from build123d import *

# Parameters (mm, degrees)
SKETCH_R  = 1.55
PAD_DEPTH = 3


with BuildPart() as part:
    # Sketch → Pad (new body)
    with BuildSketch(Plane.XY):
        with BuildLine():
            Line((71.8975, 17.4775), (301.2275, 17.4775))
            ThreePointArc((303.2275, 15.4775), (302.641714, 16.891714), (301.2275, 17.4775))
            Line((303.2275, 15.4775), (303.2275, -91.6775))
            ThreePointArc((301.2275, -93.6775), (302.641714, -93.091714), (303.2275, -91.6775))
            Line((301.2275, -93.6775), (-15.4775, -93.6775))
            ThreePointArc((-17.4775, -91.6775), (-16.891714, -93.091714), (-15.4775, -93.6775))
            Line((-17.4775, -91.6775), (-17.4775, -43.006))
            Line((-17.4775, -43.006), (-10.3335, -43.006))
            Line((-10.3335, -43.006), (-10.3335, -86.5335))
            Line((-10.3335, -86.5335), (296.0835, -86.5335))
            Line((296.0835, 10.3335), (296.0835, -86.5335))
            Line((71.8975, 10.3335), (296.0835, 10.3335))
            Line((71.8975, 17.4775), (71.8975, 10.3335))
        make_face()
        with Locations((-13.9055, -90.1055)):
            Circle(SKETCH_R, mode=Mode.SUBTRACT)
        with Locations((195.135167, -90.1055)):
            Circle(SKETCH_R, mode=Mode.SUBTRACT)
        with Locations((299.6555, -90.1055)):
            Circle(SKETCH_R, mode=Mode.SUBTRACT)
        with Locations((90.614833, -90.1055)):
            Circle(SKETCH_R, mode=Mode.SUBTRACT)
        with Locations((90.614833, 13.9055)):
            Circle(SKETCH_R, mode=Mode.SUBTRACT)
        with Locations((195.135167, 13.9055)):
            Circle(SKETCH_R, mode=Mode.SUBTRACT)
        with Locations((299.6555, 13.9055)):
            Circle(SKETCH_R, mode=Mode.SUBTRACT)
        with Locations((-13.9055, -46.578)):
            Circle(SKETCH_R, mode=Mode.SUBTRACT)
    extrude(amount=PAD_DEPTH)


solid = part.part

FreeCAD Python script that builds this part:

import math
import FreeCAD as App
import Part
import Sketcher
Q = App.Units.Quantity

doc = App.newDocument("Part")
body = doc.addObject("PartDesign::Body", "Body")

sketch1 = body.newObject("Sketcher::SketchObject", "Sketch")
sketch1.AttachmentSupport = (doc.getObject("XY_Plane"), [""])
sketch1.MapMode = "FlatFace"
sketch1.addGeometry(Part.LineSegment(App.Vector(301.2, 17.5, 0), App.Vector(71.9, 17.5, 0)), False)
sketch1.addGeometry(Part.LineSegment(App.Vector(71.9, 17.5, 0), App.Vector(71.9, 10.3, 0)), False)
sketch1.addGeometry(Part.LineSegment(App.Vector(71.9, 10.3, 0), App.Vector(296.1, 10.3, 0)), False)
sketch1.addGeometry(Part.LineSegment(App.Vector(296.1, 10.3, 0), App.Vector(296.1, -86.5, 0)), False)
sketch1.addGeometry(Part.LineSegment(App.Vector(296.1, -86.5, 0), App.Vector(-10.3, -86.5, 0)), False)
sketch1.addGeometry(Part.LineSegment(App.Vector(-10.3, -86.5, 0), App.Vector(-10.3, -43, 0)), False)
sketch1.addGeometry(Part.LineSegment(App.Vector(-10.3, -43, 0), App.Vector(-17.5, -43, 0)), False)
sketch1.addGeometry(Part.LineSegment(App.Vector(-17.5, -43, 0), App.Vector(-17.5, -91.7, 0)), False)
sketch1.addGeometry(Part.ArcOfCircle(Part.Circle(App.Vector(-15.5, -91.7, 0), App.Vector(0, 0, 1), 2), math.radians(180), math.radians(270)), False)
sketch1.addGeometry(Part.LineSegment(App.Vector(-15.5, -93.7, 0), App.Vector(301.2, -93.7, 0)), False)
sketch1.addGeometry(Part.ArcOfCircle(Part.Circle(App.Vector(301.2, -91.7, 0), App.Vector(0, 0, 1), 2), math.radians(-90), math.radians(0)), False)
sketch1.addGeometry(Part.LineSegment(App.Vector(303.2, -91.7, 0), App.Vector(303.2, 15.5, 0)), False)
sketch1.addGeometry(Part.ArcOfCircle(Part.Circle(App.Vector(301.2, 15.5, 0), App.Vector(0, 0, 1), 2), math.radians(0), math.radians(90)), False)
sketch1.addGeometry(Part.Circle(App.Vector(299.7, -90.1, 0), App.Vector(0, 0, 1), 1.6), False)
sketch1.addGeometry(Part.Circle(App.Vector(195.1, -90.1, 0), App.Vector(0, 0, 1), 1.6), False)
sketch1.addGeometry(Part.Circle(App.Vector(90.6, -90.1, 0), App.Vector(0, 0, 1), 1.6), False)
sketch1.addGeometry(Part.Circle(App.Vector(-13.9, -90.1, 0), App.Vector(0, 0, 1), 1.6), False)
sketch1.addGeometry(Part.Circle(App.Vector(-13.9, -46.6, 0), App.Vector(0, 0, 1), 1.6), False)
sketch1.addGeometry(Part.Circle(App.Vector(299.7, 13.9, 0), App.Vector(0, 0, 1), 1.6), False)
sketch1.addGeometry(Part.Circle(App.Vector(195.1, 13.9, 0), App.Vector(0, 0, 1), 1.6), False)
sketch1.addGeometry(Part.Circle(App.Vector(90.6, 13.9, 0), App.Vector(0, 0, 1), 1.6), False)
sketch1.addConstraint(Sketcher.Constraint("Coincident", 0, 2, 1, 1))
sketch1.addConstraint(Sketcher.Constraint("Coincident", 1, 2, 2, 1))
sketch1.addConstraint(Sketcher.Constraint("Coincident", 2, 2, 3, 1))
sketch1.addConstraint(Sketcher.Constraint("Coincident", 3, 2, 4, 1))
sketch1.addConstraint(Sketcher.Constraint("Coincident", 4, 2, 5, 1))
sketch1.addConstraint(Sketcher.Constraint("Coincident", 5, 2, 6, 1))
sketch1.addConstraint(Sketcher.Constraint("Coincident", 6, 2, 7, 1))
sketch1.addConstraint(Sketcher.Constraint("Tangent", 7, 2, 8, 1))
sketch1.addConstraint(Sketcher.Constraint("Tangent", 8, 2, 9, 1))
sketch1.addConstraint(Sketcher.Constraint("Tangent", 9, 2, 10, 1))
sketch1.addConstraint(Sketcher.Constraint("Tangent", 10, 2, 11, 1))
sketch1.addConstraint(Sketcher.Constraint("Tangent", 11, 2, 12, 1))
sketch1.addConstraint(Sketcher.Constraint("Tangent", 12, 2, 0, 1))
sketch1.addConstraint(Sketcher.Constraint("Horizontal", 0))
sketch1.addConstraint(Sketcher.Constraint("Vertical", 1))
sketch1.addConstraint(Sketcher.Constraint("Horizontal", 2))
sketch1.addConstraint(Sketcher.Constraint("Vertical", 3))
sketch1.addConstraint(Sketcher.Constraint("Horizontal", 4))
sketch1.addConstraint(Sketcher.Constraint("Vertical", 5))
sketch1.addConstraint(Sketcher.Constraint("Horizontal", 6))
sketch1.addConstraint(Sketcher.Constraint("Vertical", 7))
sketch1.addConstraint(Sketcher.Constraint("Horizontal", 9))
sketch1.addConstraint(Sketcher.Constraint("Vertical", 11))
sketch1.addConstraint(Sketcher.Constraint("Equal", 8, 10))
sketch1.addConstraint(Sketcher.Constraint("Equal", 10, 12))
sketch1.addConstraint(Sketcher.Constraint("Equal", 13, 14))
sketch1.addConstraint(Sketcher.Constraint("Equal", 14, 15))
sketch1.addConstraint(Sketcher.Constraint("Equal", 15, 16))
sketch1.addConstraint(Sketcher.Constraint("Equal", 16, 17))
sketch1.addConstraint(Sketcher.Constraint("Equal", 17, 18))
sketch1.addConstraint(Sketcher.Constraint("Equal", 18, 19))
sketch1.addConstraint(Sketcher.Constraint("Equal", 19, 20))
sketch1.addConstraint(Sketcher.Constraint("Horizontal", 13, 3, 14, 3))
sketch1.addConstraint(Sketcher.Constraint("Horizontal", 14, 3, 15, 3))
sketch1.addConstraint(Sketcher.Constraint("Horizontal", 15, 3, 16, 3))
sketch1.addConstraint(Sketcher.Constraint("Horizontal", 18, 3, 19, 3))
sketch1.addConstraint(Sketcher.Constraint("Horizontal", 19, 3, 20, 3))
sketch1.addConstraint(Sketcher.Constraint("Vertical", 16, 3, 17, 3))
sketch1.addConstraint(Sketcher.Constraint("Vertical", 13, 3, 18, 3))
sketch1.addConstraint(Sketcher.Constraint("Vertical", 14, 3, 19, 3))
sketch1.addConstraint(Sketcher.Constraint("Vertical", 15, 3, 20, 3))
sketch1.addConstraint(Sketcher.Constraint("Equal", 6, 1))
sketch1.addConstraint(Sketcher.Constraint("Radius", 8, Q("1.999999 mm")))
sketch1.addConstraint(Sketcher.Constraint("Diameter", 13, Q("3.1 mm")))
sketch1.addConstraint(Sketcher.Constraint("DistanceX", 0, 2, 0, 1, Q("229.33 mm")))
sketch1.addConstraint(Sketcher.Constraint("DistanceX", 2, 1, 2, 2, Q("224.186 mm")))
sketch1.addConstraint(Sketcher.Constraint("DistanceX", 4, 2, 4, 1, Q("306.417 mm")))
sketch1.addConstraint(Sketcher.Constraint("DistanceX", 6, 2, 6, 1, Q("7.144 mm")))
sketch1.addConstraint(Sketcher.Constraint("DistanceY", 3, 2, 3, 1, Q("96.867 mm")))
sketch1.addConstraint(Sketcher.Constraint("DistanceY", 11, 1, 11, 2, Q("107.155 mm")))
sketch1.addConstraint(Sketcher.Constraint("DistanceY", 5, 1, 5, 2, Q("43.5275 mm")))
sketch1.addConstraint(Sketcher.Constraint("DistanceY", 17, 3, -1, 1, Q("46.578 mm")))
sketch1.addConstraint(Sketcher.Constraint("DistanceY", 5, 2, -1, 1, Q("43.006 mm")))
sketch1.addConstraint(Sketcher.Constraint("DistanceX", 13, 3, 10, 3, Q("1.572001 mm")))
sketch1.addConstraint(Sketcher.Constraint("DistanceY", 10, 3, 13, 3, Q("1.572001 mm")))
sketch1.addConstraint(Sketcher.Constraint("DistanceX", 8, 3, 16, 3, Q("1.572001 mm")))
sketch1.addConstraint(Sketcher.Constraint("DistanceY", 18, 3, 12, 3, Q("1.572001 mm")))
sketch1.addConstraint(Sketcher.Constraint("DistanceX", 8, 3, -1, 1, Q("15.477501 mm")))
sketch1.addConstraint(Sketcher.Constraint("DistanceX", 8, 3, 14, 3, Q("210.612668 mm")))
sketch1.addConstraint(Sketcher.Constraint("DistanceX", 15, 3, 10, 3, Q("210.612668 mm")))
pad1 = body.newObject("PartDesign::Pad", "Pad")
pad1.Profile = sketch1
pad1.Length = 3

doc.recompute()
